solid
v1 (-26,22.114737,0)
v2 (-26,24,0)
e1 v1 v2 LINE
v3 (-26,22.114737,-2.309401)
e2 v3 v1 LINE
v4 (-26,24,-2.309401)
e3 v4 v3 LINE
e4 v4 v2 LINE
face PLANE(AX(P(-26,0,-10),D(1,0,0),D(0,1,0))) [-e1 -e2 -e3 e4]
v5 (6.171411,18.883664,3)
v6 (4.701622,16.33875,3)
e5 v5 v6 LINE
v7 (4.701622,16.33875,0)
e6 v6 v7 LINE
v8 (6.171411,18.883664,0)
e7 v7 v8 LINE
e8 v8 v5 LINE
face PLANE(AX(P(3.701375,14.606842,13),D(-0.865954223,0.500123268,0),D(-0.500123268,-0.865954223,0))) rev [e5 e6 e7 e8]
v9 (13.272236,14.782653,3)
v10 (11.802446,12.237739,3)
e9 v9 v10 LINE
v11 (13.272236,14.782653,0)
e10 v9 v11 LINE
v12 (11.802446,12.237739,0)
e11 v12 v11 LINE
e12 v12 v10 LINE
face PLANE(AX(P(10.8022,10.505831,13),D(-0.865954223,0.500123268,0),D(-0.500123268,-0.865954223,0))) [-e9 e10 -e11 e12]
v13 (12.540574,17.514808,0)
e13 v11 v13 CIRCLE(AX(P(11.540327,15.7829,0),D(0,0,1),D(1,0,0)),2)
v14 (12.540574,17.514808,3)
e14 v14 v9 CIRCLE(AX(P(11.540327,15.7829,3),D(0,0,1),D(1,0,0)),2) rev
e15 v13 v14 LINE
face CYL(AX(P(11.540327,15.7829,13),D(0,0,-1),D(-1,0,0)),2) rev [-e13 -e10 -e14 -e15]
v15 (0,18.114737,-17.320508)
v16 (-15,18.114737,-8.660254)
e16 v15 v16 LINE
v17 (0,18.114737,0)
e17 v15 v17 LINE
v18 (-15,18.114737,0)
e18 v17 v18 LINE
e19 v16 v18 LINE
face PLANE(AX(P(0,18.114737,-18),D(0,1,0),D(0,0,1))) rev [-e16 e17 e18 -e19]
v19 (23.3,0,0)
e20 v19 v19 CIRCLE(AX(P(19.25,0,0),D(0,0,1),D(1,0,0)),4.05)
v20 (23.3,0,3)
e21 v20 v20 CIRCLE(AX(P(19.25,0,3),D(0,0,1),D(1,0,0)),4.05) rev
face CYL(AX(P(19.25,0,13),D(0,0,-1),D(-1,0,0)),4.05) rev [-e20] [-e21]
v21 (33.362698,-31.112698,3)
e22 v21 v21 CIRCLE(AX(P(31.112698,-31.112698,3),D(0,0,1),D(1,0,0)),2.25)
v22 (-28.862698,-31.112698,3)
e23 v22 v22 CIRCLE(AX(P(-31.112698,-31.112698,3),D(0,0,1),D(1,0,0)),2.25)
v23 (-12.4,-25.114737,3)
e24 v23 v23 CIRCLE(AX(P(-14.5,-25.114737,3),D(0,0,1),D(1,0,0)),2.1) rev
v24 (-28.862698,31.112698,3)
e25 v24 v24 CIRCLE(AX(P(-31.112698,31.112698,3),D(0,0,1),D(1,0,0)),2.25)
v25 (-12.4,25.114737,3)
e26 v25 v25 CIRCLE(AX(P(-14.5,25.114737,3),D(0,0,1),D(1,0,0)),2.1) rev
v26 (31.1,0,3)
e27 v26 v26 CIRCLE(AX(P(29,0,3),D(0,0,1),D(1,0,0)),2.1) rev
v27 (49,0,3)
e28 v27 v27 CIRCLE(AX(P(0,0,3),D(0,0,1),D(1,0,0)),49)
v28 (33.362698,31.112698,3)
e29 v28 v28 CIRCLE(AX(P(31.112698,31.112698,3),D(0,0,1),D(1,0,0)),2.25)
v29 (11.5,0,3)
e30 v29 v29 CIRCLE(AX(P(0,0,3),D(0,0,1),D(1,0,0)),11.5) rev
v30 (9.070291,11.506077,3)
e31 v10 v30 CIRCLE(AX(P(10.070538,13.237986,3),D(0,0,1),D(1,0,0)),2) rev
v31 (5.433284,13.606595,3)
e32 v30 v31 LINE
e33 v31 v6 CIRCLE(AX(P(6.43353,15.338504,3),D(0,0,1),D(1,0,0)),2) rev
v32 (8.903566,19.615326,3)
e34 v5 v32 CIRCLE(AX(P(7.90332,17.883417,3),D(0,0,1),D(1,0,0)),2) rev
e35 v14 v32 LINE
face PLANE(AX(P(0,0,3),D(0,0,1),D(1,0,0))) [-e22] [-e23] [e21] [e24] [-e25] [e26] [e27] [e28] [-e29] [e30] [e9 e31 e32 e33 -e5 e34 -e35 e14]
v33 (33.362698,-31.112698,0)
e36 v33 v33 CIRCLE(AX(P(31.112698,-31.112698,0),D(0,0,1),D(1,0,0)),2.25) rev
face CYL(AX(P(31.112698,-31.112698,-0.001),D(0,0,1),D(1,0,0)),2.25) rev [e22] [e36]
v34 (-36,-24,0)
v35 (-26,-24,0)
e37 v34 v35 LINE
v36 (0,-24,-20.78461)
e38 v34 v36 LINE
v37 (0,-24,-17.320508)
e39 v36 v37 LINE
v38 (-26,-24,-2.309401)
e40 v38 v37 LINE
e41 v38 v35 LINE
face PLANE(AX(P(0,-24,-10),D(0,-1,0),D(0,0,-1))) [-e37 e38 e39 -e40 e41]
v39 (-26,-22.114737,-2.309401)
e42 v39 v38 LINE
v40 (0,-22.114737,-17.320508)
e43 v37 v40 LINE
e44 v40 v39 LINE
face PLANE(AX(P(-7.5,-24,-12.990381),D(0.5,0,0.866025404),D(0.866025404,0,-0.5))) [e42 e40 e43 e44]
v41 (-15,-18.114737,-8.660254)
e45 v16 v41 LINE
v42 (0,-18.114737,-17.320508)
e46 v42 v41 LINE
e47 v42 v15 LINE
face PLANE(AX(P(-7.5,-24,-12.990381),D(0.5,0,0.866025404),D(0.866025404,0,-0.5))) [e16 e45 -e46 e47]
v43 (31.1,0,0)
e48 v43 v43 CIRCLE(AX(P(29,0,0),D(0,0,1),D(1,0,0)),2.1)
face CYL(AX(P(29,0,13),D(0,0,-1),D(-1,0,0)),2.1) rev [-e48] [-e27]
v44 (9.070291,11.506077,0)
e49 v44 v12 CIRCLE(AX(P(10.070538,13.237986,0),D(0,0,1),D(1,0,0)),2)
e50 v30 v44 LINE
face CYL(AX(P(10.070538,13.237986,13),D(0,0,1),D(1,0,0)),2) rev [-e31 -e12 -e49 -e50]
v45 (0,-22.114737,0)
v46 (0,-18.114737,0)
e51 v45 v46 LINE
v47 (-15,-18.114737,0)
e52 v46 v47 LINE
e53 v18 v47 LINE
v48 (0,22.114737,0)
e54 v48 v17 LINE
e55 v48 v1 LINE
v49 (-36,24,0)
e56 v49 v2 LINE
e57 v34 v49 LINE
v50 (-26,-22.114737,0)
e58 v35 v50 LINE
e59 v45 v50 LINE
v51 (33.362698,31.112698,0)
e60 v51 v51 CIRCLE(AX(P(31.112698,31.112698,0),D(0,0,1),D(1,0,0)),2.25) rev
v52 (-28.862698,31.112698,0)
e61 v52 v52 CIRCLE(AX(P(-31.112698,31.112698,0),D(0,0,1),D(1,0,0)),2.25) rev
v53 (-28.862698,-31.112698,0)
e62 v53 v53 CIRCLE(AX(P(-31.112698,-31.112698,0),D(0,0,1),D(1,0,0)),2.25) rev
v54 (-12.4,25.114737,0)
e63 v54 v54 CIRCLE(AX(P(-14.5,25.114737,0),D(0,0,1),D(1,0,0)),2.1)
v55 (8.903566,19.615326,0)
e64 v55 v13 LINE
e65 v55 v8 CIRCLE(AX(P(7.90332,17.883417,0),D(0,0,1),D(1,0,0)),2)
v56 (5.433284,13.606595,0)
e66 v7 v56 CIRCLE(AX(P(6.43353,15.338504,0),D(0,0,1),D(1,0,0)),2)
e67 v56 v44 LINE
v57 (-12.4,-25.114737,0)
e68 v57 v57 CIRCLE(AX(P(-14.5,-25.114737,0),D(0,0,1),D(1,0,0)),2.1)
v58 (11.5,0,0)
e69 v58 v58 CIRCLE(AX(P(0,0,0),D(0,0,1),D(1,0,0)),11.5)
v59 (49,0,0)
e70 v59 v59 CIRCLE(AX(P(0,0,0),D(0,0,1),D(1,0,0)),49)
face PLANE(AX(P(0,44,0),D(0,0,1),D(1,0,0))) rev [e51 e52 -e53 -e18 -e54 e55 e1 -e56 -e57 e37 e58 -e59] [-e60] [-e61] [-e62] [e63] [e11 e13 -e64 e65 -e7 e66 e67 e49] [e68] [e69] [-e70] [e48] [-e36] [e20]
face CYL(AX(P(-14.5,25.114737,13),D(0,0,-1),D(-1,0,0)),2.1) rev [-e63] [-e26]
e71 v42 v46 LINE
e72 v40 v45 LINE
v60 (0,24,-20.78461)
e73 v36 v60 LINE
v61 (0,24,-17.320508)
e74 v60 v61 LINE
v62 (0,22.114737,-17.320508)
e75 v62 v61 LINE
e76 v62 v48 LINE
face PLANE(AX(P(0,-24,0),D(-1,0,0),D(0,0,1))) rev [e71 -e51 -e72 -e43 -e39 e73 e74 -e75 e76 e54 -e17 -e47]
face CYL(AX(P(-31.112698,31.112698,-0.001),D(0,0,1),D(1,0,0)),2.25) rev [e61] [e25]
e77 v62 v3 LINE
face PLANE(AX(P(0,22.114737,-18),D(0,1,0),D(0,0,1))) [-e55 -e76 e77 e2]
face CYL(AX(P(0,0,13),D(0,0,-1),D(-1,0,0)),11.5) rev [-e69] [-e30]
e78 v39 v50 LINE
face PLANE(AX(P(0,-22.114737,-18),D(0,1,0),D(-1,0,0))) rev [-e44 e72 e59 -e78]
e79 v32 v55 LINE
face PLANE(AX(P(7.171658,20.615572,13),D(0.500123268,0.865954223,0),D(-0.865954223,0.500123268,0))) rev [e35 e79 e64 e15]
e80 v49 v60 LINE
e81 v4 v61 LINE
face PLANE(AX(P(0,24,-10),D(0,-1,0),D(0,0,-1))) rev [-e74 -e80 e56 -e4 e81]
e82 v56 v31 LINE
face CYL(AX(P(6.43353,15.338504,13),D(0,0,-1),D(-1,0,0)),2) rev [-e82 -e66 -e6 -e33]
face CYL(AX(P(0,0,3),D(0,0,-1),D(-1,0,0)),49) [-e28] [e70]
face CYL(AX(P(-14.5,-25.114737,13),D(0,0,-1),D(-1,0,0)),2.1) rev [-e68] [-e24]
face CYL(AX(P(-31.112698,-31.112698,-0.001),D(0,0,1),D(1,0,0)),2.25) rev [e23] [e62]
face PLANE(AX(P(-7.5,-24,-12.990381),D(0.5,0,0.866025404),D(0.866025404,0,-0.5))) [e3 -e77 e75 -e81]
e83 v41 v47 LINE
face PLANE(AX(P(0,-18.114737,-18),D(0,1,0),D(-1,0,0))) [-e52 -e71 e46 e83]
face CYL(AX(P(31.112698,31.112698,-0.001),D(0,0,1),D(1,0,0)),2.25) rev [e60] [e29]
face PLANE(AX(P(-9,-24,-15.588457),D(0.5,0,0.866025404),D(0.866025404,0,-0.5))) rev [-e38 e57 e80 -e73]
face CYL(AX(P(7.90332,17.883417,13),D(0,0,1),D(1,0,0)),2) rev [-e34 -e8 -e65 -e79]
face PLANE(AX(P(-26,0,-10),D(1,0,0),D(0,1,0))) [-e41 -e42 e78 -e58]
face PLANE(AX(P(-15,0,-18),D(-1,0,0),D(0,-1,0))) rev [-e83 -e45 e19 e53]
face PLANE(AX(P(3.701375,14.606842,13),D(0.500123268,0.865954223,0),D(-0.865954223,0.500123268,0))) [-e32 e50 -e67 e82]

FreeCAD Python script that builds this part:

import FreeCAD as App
import Part
import Sketcher
Q = App.Units.Quantity


def edges_at(feature, points):
    """Names of the edges that pass closest to the given points."""
    edges = feature.Shape.Edges
    near = lambda p: min(range(len(edges)), key=lambda i: edges[i].distToShape(Part.Vertex(*p))[0])
    return sorted({f"Edge{near(p) + 1}" for p in points})

doc = App.newDocument("Part")
body = doc.addObject("PartDesign::Body", "Body")

# Sketch on XY plane
sketch1 = doc.addObject("Sketcher::SketchObject", "Sketch")
body.addObject(sketch1)
sketch1.AttachmentSupport = (doc.XY_Plane, [""])
sketch1.MapMode = "FlatFace"
sketch1.addGeometry(Part.Circle(App.Vector(0, 44, 0), App.Vector(0, 0, 1), 1.6), False)
sketch1.addConstraint([
    Sketcher.Constraint("PointOnObject", 0, 3, -2),
    Sketcher.Constraint("Diameter", 0, 3.2),
    Sketcher.Constraint("DistanceY", -1, 1, 0, 3, 44.0),
])
pad1 = doc.addObject("PartDesign::Pad", "Pad")
body.addObject(pad1)
pad1.Profile = sketch1
pad1.Length = 13
body2 = doc.addObject("PartDesign::Body", "Body001")

# Sketch on XY plane
sketch2 = doc.addObject("Sketcher::SketchObject", "Sketch001")
body2.addObject(sketch2)
sketch2.AttachmentSupport = (doc.getObject("XY_Plane001"), [""])
sketch2.MapMode = "FlatFace"
sketch2.addGeometry(Part.Circle(App.Vector(44, 0, 0), App.Vector(0, 0, 1), 1.6), False)
sketch2.addConstraint([
    Sketcher.Constraint("PointOnObject", 0, 3, -1),
    Sketcher.Constraint("Diameter", 0, 3.2),
    Sketcher.Constraint("DistanceX", -1, 1, 0, 3, 44.0),
])
pad2 = doc.addObject("PartDesign::Pad", "Pad001")
body2.addObject(pad2)
pad2.Profile = sketch2
pad2.Length = 13
body3 = doc.addObject("PartDesign::Body", "Body002")

# Sketch on XY plane
sketch3 = doc.addObject("Sketcher::SketchObject", "Sketch002")
body3.addObject(sketch3)
sketch3.AttachmentSupport = (doc.getObject("XY_Plane002"), [""])
sketch3.MapMode = "FlatFace"
sketch3.addGeometry(Part.Circle(App.Vector(0, -44, 0), App.Vector(0, 0, 1), 1.6), False)
sketch3.addConstraint([
    Sketcher.Constraint("PointOnObject", 0, 3, -2),
    Sketcher.Constraint("Diameter", 0, 3.2),
    Sketcher.Constraint("DistanceY", 0, 3, -1, 1, 44.0),
])
pad3 = doc.addObject("PartDesign::Pad", "Pad002")
body3.addObject(pad3)
pad3.Profile = sketch3
pad3.Length = 13
body4 = doc.addObject("PartDesign::Body", "Body003")

# Sketch on XY plane
sketch4 = doc.addObject("Sketcher::SketchObject", "Sketch003")
body4.addObject(sketch4)
sketch4.AttachmentSupport = (doc.getObject("XY_Plane003"), [""])
sketch4.MapMode = "FlatFace"
sketch4.addGeometry(Part.Circle(App.Vector(-44, 0, 0), App.Vector(0, 0, 1), 1.6), False)
sketch4.addConstraint([
    Sketcher.Constraint("PointOnObject", 0, 3, -1),
    Sketcher.Constraint("Diameter", 0, 3.2),
    Sketcher.Constraint("DistanceX", 0, 3, -1, 1, 44.0),
])
pad4 = doc.addObject("PartDesign::Pad", "Pad003")
body4.addObject(pad4)
pad4.Profile = sketch4
pad4.Length = 13
body5 = doc.addObject("PartDesign::Body", "Body004")

# Sketch on XY plane
sketch5 = doc.addObject("Sketcher::SketchObject", "Sketch004")
body5.addObject(sketch5)
sketch5.AttachmentSupport = (doc.getObject("XY_Plane004"), [""])
sketch5.MapMode = "FlatFace"
sketch5.addGeometry(Part.Circle(App.Vector(29, 0, 0), App.Vector(0, 0, 1), 2.1), False)
sketch5.addConstraint([
    Sketcher.Constraint("PointOnObject", 0, 3, -1),
    Sketcher.Constraint("Diameter", 0, 4.2),
    Sketcher.Constraint("DistanceX", -1, 1, 0, 3, 29.0),
])
pad5 = doc.addObject("PartDesign::Pad", "Pad004")
body5.addObject(pad5)
pad5.Profile = sketch5
pad5.Length = 13
body6 = doc.addObject("PartDesign::Body", "Body005")

# Sketch on XY plane
sketch6 = doc.addObject("Sketcher::SketchObject", "Sketch005")
body6.addObject(sketch6)
sketch6.AttachmentSupport = (doc.getObject("XY_Plane005"), [""])
sketch6.MapMode = "FlatFace"
sketch6.addGeometry(Part.Circle(App.Vector(-14.5, 25.1, 0), App.Vector(0, 0, 1), 2.1), False)
sketch6.addConstraint([
    Sketcher.Constraint("Diameter", 0, 4.2),
    Sketcher.Constraint("DistanceX", 0, 3, -1, 1, 14.5),
    Sketcher.Constraint("DistanceY", -1, 1, 0, 3, 25.114737),
])
pad6 = doc.addObject("PartDesign::Pad", "Pad005")
body6.addObject(pad6)
pad6.Profile = sketch6
pad6.Length = 13
body7 = doc.addObject("PartDesign::Body", "Body006")

# Sketch on XY plane
sketch7 = doc.addObject("Sketcher::SketchObject", "Sketch006")
body7.addObject(sketch7)
sketch7.AttachmentSupport = (doc.getObject("XY_Plane006"), [""])
sketch7.MapMode = "FlatFace"
sketch7.addGeometry(Part.Circle(App.Vector(-14.5, -25.1, 0), App.Vector(0, 0, 1), 2.1), False)
sketch7.addConstraint([
    Sketcher.Constraint("Diameter", 0, 4.2),
    Sketcher.Constraint("DistanceX", 0, 3, -1, 1, 14.5),
    Sketcher.Constraint("DistanceY", 0, 3, -1, 1, 25.114737),
])
pad7 = doc.addObject("PartDesign::Pad", "Pad006")
body7.addObject(pad7)
pad7.Profile = sketch7
pad7.Length = 13
body.AllowCompound = True
doc.recompute()

boolean = doc.addObject("PartDesign::Boolean", "Boolean")
body.addObject(boolean)
boolean.Type = "Fuse"
boolean.addObjects([body2])
doc.recompute()

boolean2 = doc.addObject("PartDesign::Boolean", "Boolean001")
body.addObject(boolean2)
boolean2.Type = "Fuse"
boolean2.addObjects([body3])
doc.recompute()

boolean3 = doc.addObject("PartDesign::Boolean", "Boolean002")
body.addObject(boolean3)
boolean3.Type = "Fuse"
boolean3.addObjects([body4])
doc.recompute()

boolean4 = doc.addObject("PartDesign::Boolean", "Boolean003")
body.addObject(boolean4)
boolean4.Type = "Fuse"
boolean4.addObjects([body5])
doc.recompute()

boolean5 = doc.addObject("PartDesign::Boolean", "Boolean004")
body.addObject(boolean5)
boolean5.Type = "Fuse"
boolean5.addObjects([body6])
doc.recompute()

boolean6 = doc.addObject("PartDesign::Boolean", "Boolean005")
body.addObject(boolean6)
boolean6.Type = "Fuse"
boolean6.addObjects([body7])

# Sketch on XY plane
sketch8 = doc.addObject("Sketcher::SketchObject", "Sketch007")
body.addObject(sketch8)
sketch8.AttachmentSupport = (doc.XY_Plane, [""])
sketch8.MapMode = "FlatFace"
sketch8.addGeometry(Part.Circle(App.Vector(0, 0, 0), App.Vector(0, 0, 1), 49), False)
sketch8.addConstraint([
    Sketcher.Constraint("Coincident", 0, 3, -1, 1),
    Sketcher.Constraint("Diameter", 0, 98.0),
])
pad8 = doc.addObject("PartDesign::Pad", "Pad007")
body.addObject(pad8)
pad8.Profile = sketch8
pad8.Length = 3

# Sketch on XY plane
sketch9 = doc.addObject("Sketcher::SketchObject", "Sketch008")
body.addObject(sketch9)
sketch9.AttachmentSupport = (doc.XY_Plane, [""])
sketch9.MapMode = "FlatFace"
sketch9.addGeometry([
    Part.Circle(App.Vector(0, 44, 0), App.Vector(0, 0, 1), 2.1),  # 0
    Part.Circle(App.Vector(44, 0, 0), App.Vector(0, 0, 1), 2.1),  # 1
    Part.Circle(App.Vector(0, -44, 0), App.Vector(0, 0, 1), 2.1),  # 2
    Part.Circle(App.Vector(-44, 0, 0), App.Vector(0, 0, 1), 2.1),  # 3
    Part.Circle(App.Vector(-14.5, 25.1, 0), App.Vector(0, 0, 1), 2.1),  # 4
    Part.Circle(App.Vector(-14.5, -25.1, 0), App.Vector(0, 0, 1), 2.1),  # 5
    Part.Circle(App.Vector(29, 0, 0), App.Vector(0, 0, 1), 2.1),  # 6
], False)
sketch9.addConstraint([
    Sketcher.Constraint("Equal", 0, 1),
    Sketcher.Constraint("Equal", 1, 2),
    Sketcher.Constraint("Equal", 2, 3),
    Sketcher.Constraint("Equal", 3, 4),
    Sketcher.Constraint("Equal", 4, 5),
    Sketcher.Constraint("Equal", 5, 6),
    Sketcher.Constraint("Symmetric", 0, 3, 2, 3, -1, 1),
    Sketcher.Constraint("Symmetric", 1, 3, 3, 3, -1, 1),
    Sketcher.Constraint("Symmetric", 4, 3, 5, 3, -1),
    Sketcher.Constraint("PointOnObject", 0, 3, -2),
    Sketcher.Constraint("PointOnObject", 1, 3, -1),
    Sketcher.Constraint("PointOnObject", 6, 3, -1),
    Sketcher.Constraint("Diameter", 0, 4.2),
    Sketcher.Constraint("DistanceY", -1, 1, 0, 3, 44.0),
    Sketcher.Constraint("DistanceX", -1, 1, 1, 3, 44.0),
    Sketcher.Constraint("DistanceX", -1, 1, 6, 3, 29.0),
    Sketcher.Constraint("DistanceX", 4, 3, -1, 1, 14.5),
    Sketcher.Constraint("DistanceY", -1, 1, 4, 3, 25.114737),
])
pocket1 = doc.addObject("PartDesign::Pocket", "Pocket")
body.addObject(pocket1)
pocket1.Profile = sketch9
pocket1.Length = 13
pocket1.Reversed = True

# Sketch on XY plane
sketch10 = doc.addObject("Sketcher::SketchObject", "Sketch009")
body.addObject(sketch10)
sketch10.AttachmentSupport = (doc.XY_Plane, [""])
sketch10.MapMode = "FlatFace"
sketch10.addGeometry(Part.Circle(App.Vector(0, 0, 0), App.Vector(0, 0, 1), 9), False)
sketch10.addConstraint([
    Sketcher.Constraint("Coincident", 0, 3, -1, 1),
    Sketcher.Constraint("Diameter", 0, 17.2),
])
pocket2 = doc.addObject("PartDesign::Pocket", "Pocket001")
body.addObject(pocket2)
pocket2.Profile = sketch10
pocket2.Length = 13
pocket2.Reversed = True

# Sketch on XY plane
sketch11 = doc.addObject("Sketcher::SketchObject", "Sketch010")
body.addObject(sketch11)
sketch11.AttachmentSupport = (doc.XY_Plane, [""])
sketch11.MapMode = "FlatFace"
sketch11.addGeometry(Part.Circle(App.Vector(19.2, 0, 0), App.Vector(0, 0, 1), 4), False)
sketch11.addConstraint([
    Sketcher.Constraint("PointOnObject", 0, 3, -1),
    Sketcher.Constraint("Diameter", 0, 8.1),
    Sketcher.Constraint("DistanceX", -1, 1, 0, 3, 19.25),
])
pocket3 = doc.addObject("PartDesign::Pocket", "Pocket002")
body.addObject(pocket3)
pocket3.Profile = sketch11
pocket3.Length = 13
pocket3.Reversed = True

# Sketch on XY plane
sketch12 = doc.addObject("Sketcher::SketchObject", "Sketch011")
body.addObject(sketch12)
sketch12.AttachmentSupport = (doc.XY_Plane, [""])
sketch12.MapMode = "FlatFace"
sketch12.addGeometry([
    Part.LineSegment(App.Vector(11, 11, 0), App.Vector(14, 17, 0)),
    Part.LineSegment(App.Vector(14, 17, 0), App.Vector(7, 21, 0)),
    Part.LineSegment(App.Vector(7, 21, 0), App.Vector(4, 15, 0)),
    Part.LineSegment(App.Vector(4, 15, 0), App.Vector(11, 11, 0)),
], False)
sketch12.addConstraint([
    Sketcher.Constraint("Coincident", 0, 2, 1, 1),
    Sketcher.Constraint("Coincident", 1, 2, 2, 1),
    Sketcher.Constraint("Coincident", 2, 2, 3, 1),
    Sketcher.Constraint("Coincident", 3, 2, 0, 1),
    Sketcher.Constraint("Perpendicular", 0, 1),
    Sketcher.Constraint("Perpendicular", 1, 2),
    Sketcher.Constraint("Perpendicular", 2, 3),
    Sketcher.Constraint("Distance", 1, 8.2),
    Sketcher.Constraint("DistanceX", -1, 1, 3, 2, 10.8022),
    Sketcher.Constraint("DistanceY", -1, 1, 0, 2, 16.514561),
    Sketcher.Constraint("DistanceY", -1, 1, 2, 2, 14.606842),
    Sketcher.Constraint("DistanceY", -1, 1, 3, 2, 10.505831),
])
pocket4 = doc.addObject("PartDesign::Pocket", "Pocket003")
body.addObject(pocket4)
pocket4.Profile = sketch12
pocket4.Length = 13
pocket4.Reversed = True

# Sketch on XY plane
sketch13 = doc.addObject("Sketcher::SketchObject", "Sketch012")
body.addObject(sketch13)
sketch13.AttachmentSupport = (doc.XY_Plane, [""])
sketch13.MapMode = "FlatFace"
sketch13.addGeometry(Part.Circle(App.Vector(0, 0, 0), App.Vector(0, 0, 1), 12), False)
sketch13.addConstraint([
    Sketcher.Constraint("Coincident", 0, 3, -1, 1),
    Sketcher.Constraint("Diameter", 0, 23.0),
])
pocket5 = doc.addObject("PartDesign::Pocket", "Pocket004")
body.addObject(pocket5)
pocket5.Profile = sketch13
pocket5.Length = 13
pocket5.Reversed = True
doc.recompute()

fillet = doc.addObject("PartDesign::Fillet", "Fillet")
body.addObject(fillet)
fillet.Base = (pocket5, edges_at(pocket5, [
    (7.172, 20.616, 1.5),
    (3.701, 14.607, 1.5),
    (10.802, 10.506, 1.5),
    (14.272, 16.515, 1.5),
]))
fillet.Radius = 2

# Sketch on XY plane
sketch14 = doc.addObject("Sketcher::SketchObject", "Sketch013")
body.addObject(sketch14)
sketch14.AttachmentSupport = (doc.XY_Plane, [""])
sketch14.MapMode = "FlatFace"
sketch14.AttachmentOffset = App.Placement(App.Vector(0, 0, 3), App.Rotation())
sketch14.addGeometry(Part.Circle(App.Vector(-31.1, 31.1, 0), App.Vector(0, 0, 1), 2.2), False)
sketch14.addConstraint([
    Sketcher.Constraint("Diameter", 0, 4.5),
    Sketcher.Constraint("DistanceX", 0, 3, -1, 1, 31.112698),
    Sketcher.Constraint("DistanceY", -1, 1, 0, 3, 31.112698),
])
pocket6 = doc.addObject("PartDesign::Pocket", "Pocket005")
body.addObject(pocket6)
pocket6.Profile = sketch14
pocket6.Type = "UpToFirst"

# Sketch on XY plane
sketch15 = doc.addObject("Sketcher::SketchObject", "Sketch014")
body.addObject(sketch15)
sketch15.AttachmentSupport = (doc.XY_Plane, [""])
sketch15.MapMode = "FlatFace"
sketch15.AttachmentOffset = App.Placement(App.Vector(0, 0, 3), App.Rotation())
sketch15.addGeometry(Part.Circle(App.Vector(31.1, 31.1, 0), App.Vector(0, 0, 1), 2.2), False)
sketch15.addConstraint([
    Sketcher.Constraint("Diameter", 0, 4.5),
    Sketcher.Constraint("DistanceX", -1, 1, 0, 3, 31.112698),
    Sketcher.Constraint("DistanceY", -1, 1, 0, 3, 31.112698),
])
pocket7 = doc.addObject("PartDesign::Pocket", "Pocket006")
body.addObject(pocket7)
pocket7.Profile = sketch15
pocket7.Type = "UpToFirst"

# Sketch on XY plane
sketch16 = doc.addObject("Sketcher::SketchObject", "Sketch015")
body.addObject(sketch16)
sketch16.AttachmentSupport = (doc.XY_Plane, [""])
sketch16.MapMode = "FlatFace"
sketch16.AttachmentOffset = App.Placement(App.Vector(0, 0, 3), App.Rotation())
sketch16.addGeometry(Part.Circle(App.Vector(31.1, -31.1, 0), App.Vector(0, 0, 1), 2.2), False)
sketch16.addConstraint([
    Sketcher.Constraint("Diameter", 0, 4.5),
    Sketcher.Constraint("DistanceX", -1, 1, 0, 3, 31.112698),
    Sketcher.Constraint("DistanceY", 0, 3, -1, 1, 31.112698),
])
pocket8 = doc.addObject("PartDesign::Pocket", "Pocket007")
body.addObject(pocket8)
pocket8.Profile = sketch16
pocket8.Type = "UpToFirst"

# Sketch on XY plane
sketch17 = doc.addObject("Sketcher::SketchObject", "Sketch016")
body.addObject(sketch17)
sketch17.AttachmentSupport = (doc.XY_Plane, [""])
sketch17.MapMode = "FlatFace"
sketch17.AttachmentOffset = App.Placement(App.Vector(0, 0, 3), App.Rotation())
sketch17.addGeometry(Part.Circle(App.Vector(-31.1, -31.1, 0), App.Vector(0, 0, 1), 2.2), False)
sketch17.addConstraint([
    Sketcher.Constraint("Diameter", 0, 4.5),
    Sketcher.Constraint("DistanceX", 0, 3, -1, 1, 31.112698),
    Sketcher.Constraint("DistanceY", 0, 3, -1, 1, 31.112698),
])
pocket9 = doc.addObject("PartDesign::Pocket", "Pocket008")
body.addObject(pocket9)
pocket9.Profile = sketch17
pocket9.Type = "UpToFirst"

# Sketch on XY plane
sketch18 = doc.addObject("Sketcher::SketchObject", "Sketch017")
body.addObject(sketch18)
sketch18.AttachmentSupport = (doc.XY_Plane, [""])
sketch18.MapMode = "FlatFace"
sketch18.addGeometry([
    Part.Circle(App.Vector(-44, 0, 0), App.Vector(0, 0, 1), 2.1),
    Part.Circle(App.Vector(0, -44, 0), App.Vector(0, 0, 1), 2.1),
    Part.Circle(App.Vector(44, 0, 0), App.Vector(0, 0, 1), 2.1),
    Part.Circle(App.Vector(0, 44, 0), App.Vector(0, 0, 1), 2.1),
], False)
sketch18.addConstraint([
    Sketcher.Constraint("Equal", 0, 1),
    Sketcher.Constraint("Equal", 1, 2),
    Sketcher.Constraint("Equal", 2, 3),
    Sketcher.Constraint("Symmetric", 0, 3, 2, 3, -1, 1),
    Sketcher.Constraint("Symmetric", 1, 3, 3, 3, -1, 1),
    Sketcher.Constraint("PointOnObject", 0, 3, -1),
    Sketcher.Constraint("PointOnObject", 1, 3, -2),
    Sketcher.Constraint("Diameter", 0, 4.2),
    Sketcher.Constraint("DistanceX", 0, 3, -1, 1, 44.0),
    Sketcher.Constraint("DistanceY", 1, 3, -1, 1, 44.0),
])
pad9 = doc.addObject("PartDesign::Pad", "Pad008")
body.addObject(pad9)
pad9.Profile = sketch18
pad9.Length = 3

# Sketch on XY plane
sketch19 = doc.addObject("Sketcher::SketchObject", "Sketch018")
body.addObject(sketch19)
sketch19.AttachmentSupport = (doc.XY_Plane, [""])
sketch19.MapMode = "FlatFace"
sketch19.addGeometry([
    Part.LineSegment(App.Vector(-26, 24, 0), App.Vector(-26, -24, 0)),
    Part.LineSegment(App.Vector(-26, -24, 0), App.Vector(-36, -24, 0)),
    Part.LineSegment(App.Vector(-36, -24, 0), App.Vector(-36, 24, 0)),
    Part.LineSegment(App.Vector(-36, 24, 0), App.Vector(-26, 24, 0)),
], False)
sketch19.addConstraint([
    Sketcher.Constraint("Coincident", 0, 2, 1, 1),
    Sketcher.Constraint("Coincident", 1, 2, 2, 1),
    Sketcher.Constraint("Coincident", 2, 2, 3, 1),
    Sketcher.Constraint("Coincident", 3, 2, 0, 1),
    Sketcher.Constraint("Vertical", 0),
    Sketcher.Constraint("Horizontal", 1),
    Sketcher.Constraint("Vertical", 2),
    Sketcher.Constraint("Horizontal", 3),
    Sketcher.Constraint("DistanceX", 1, 2, 1, 1, 10.0),
    Sketcher.Constraint("DistanceY", 0, 2, 0, 1, 48.0),
    Sketcher.Constraint("DistanceX", 0, 2, -1, 1, 26.0),
    Sketcher.Constraint("DistanceY", 0, 2, -1, 1, 24.0),
])
pad10 = doc.addObject("PartDesign::Pad", "Pad009")
body.addObject(pad10)
pad10.Profile = sketch19
pad10.Length = 10
pad10.Reversed = True

# Sketch on XZ plane
sketch20 = doc.addObject("Sketcher::SketchObject", "Sketch019")
body.addObject(sketch20)
sketch20.AttachmentSupport = (doc.XZ_Plane, [""])
sketch20.MapMode = "FlatFace"
sketch20.AttachmentOffset = App.Placement(App.Vector(0, 0, -24), App.Rotation())
sketch20.addGeometry([
    Part.LineSegment(App.Vector(0, -20.8, 0), App.Vector(-26, -5.8, 0)),  # 0
    Part.LineSegment(App.Vector(-26, -5.8, 0), App.Vector(-36, 0, 0)),  # 1
    Part.LineSegment(App.Vector(-36, 0, 0), App.Vector(-30, 0, 0)),  # 2
    Part.LineSegment(App.Vector(-30, 0, 0), App.Vector(-26, -2.3, 0)),  # 3
    Part.LineSegment(App.Vector(-26, -2.3, 0), App.Vector(0, -17.3, 0)),  # 4
    Part.LineSegment(App.Vector(0, -17.3, 0), App.Vector(0, -20.8, 0)),  # 5
], False)
sketch20.addConstraint([
    Sketcher.Constraint("Coincident", 0, 2, 1, 1),
    Sketcher.Constraint("Coincident", 1, 2, 2, 1),
    Sketcher.Constraint("Coincident", 2, 2, 3, 1),
    Sketcher.Constraint("Coincident", 3, 2, 4, 1),
    Sketcher.Constraint("Coincident", 4, 2, 5, 1),
    Sketcher.Constraint("Coincident", 5, 2, 0, 1),
    Sketcher.Constraint("Horizontal", 2),
    Sketcher.Constraint("Vertical", 5),
    Sketcher.Constraint("PointOnObject", 1, 2, -1),
    Sketcher.Constraint("PointOnObject", 4, 2, -2),
    Sketcher.Constraint("Parallel", 0, 1),
    Sketcher.Constraint("Parallel", 1, 3),
    Sketcher.Constraint("Parallel", 3, 4),
    Sketcher.Constraint("Vertical", 0, 2, 3, 2),
    Sketcher.Constraint("DistanceX", 2, 1, 2, 2, 6.0),
    Sketcher.Constraint("Angle", 0, Q("150 deg")),
    Sketcher.Constraint("DistanceX", 0, 2, -1, 1, 26.0),
    Sketcher.Constraint("DistanceX", 1, 2, -1, 1, 36.0),
])
pad11 = doc.addObject("PartDesign::Pad", "Pad010")
body.addObject(pad11)
pad11.Profile = sketch20
pad11.Length = 48

# Sketch on XY plane
sketch21 = doc.addObject("Sketcher::SketchObject", "Sketch020")
body.addObject(sketch21)
sketch21.AttachmentSupport = (doc.XY_Plane, [""])
sketch21.MapMode = "FlatFace"
sketch21.addGeometry([
    Part.LineSegment(App.Vector(0, -18.1, 0), App.Vector(0, -22.1, 0)),  # 0
    Part.LineSegment(App.Vector(0, -22.1, 0), App.Vector(-26, -22.1, 0)),  # 1
    Part.LineSegment(App.Vector(-26, -22.1, 0), App.Vector(-26, 22.1, 0)),  # 2
    Part.LineSegment(App.Vector(-26, 22.1, 0), App.Vector(0, 22.1, 0)),  # 3
    Part.LineSegment(App.Vector(0, 22.1, 0), App.Vector(0, 18.1, 0)),  # 4
    Part.LineSegment(App.Vector(0, 18.1, 0), App.Vector(-15, 18.1, 0)),  # 5
    Part.LineSegment(App.Vector(-15, 18.1, 0), App.Vector(-15, -18.1, 0)),  # 6
    Part.LineSegment(App.Vector(-15, -18.1, 0), App.Vector(0, -18.1, 0)),  # 7
], False)
sketch21.addConstraint([
    Sketcher.Constraint("Coincident", 0, 2, 1, 1),
    Sketcher.Constraint("Coincident", 1, 2, 2, 1),
    Sketcher.Constraint("Coincident", 2, 2, 3, 1),
    Sketcher.Constraint("Coincident", 3, 2, 4, 1),
    Sketcher.Constraint("Coincident", 4, 2, 5, 1),
    Sketcher.Constraint("Coincident", 5, 2, 6, 1),
    Sketcher.Constraint("Coincident", 6, 2, 7, 1),
    Sketcher.Constraint("Coincident", 7, 2, 0, 1),
    Sketcher.Constraint("Vertical", 0),
    Sketcher.Constraint("Horizontal", 1),
    Sketcher.Constraint("Vertical", 2),
    Sketcher.Constraint("Horizontal", 3),
    Sketcher.Constraint("Vertical", 4),
    Sketcher.Constraint("Horizontal", 5),
    Sketcher.Constraint("Vertical", 6),
    Sketcher.Constraint("Horizontal", 7),
    Sketcher.Constraint("Symmetric", 0, 2, 3, 2, -1, 1),
    Sketcher.Constraint("Symmetric", 4, 2, 7, 2, -1),
    Sketcher.Constraint("DistanceX", 1, 2, 1, 1, 26.0),
    Sketcher.Constraint("DistanceX", 5, 2, 5, 1, 15.0),
    Sketcher.Constraint("DistanceY", 0, 2, 0, 1, 4.0),
    Sketcher.Constraint("DistanceY", 2, 1, 2, 2, 44.229473),
])
pad12 = doc.addObject("PartDesign::Pad", "Pad011")
body.addObject(pad12)
pad12.Profile = sketch21
pad12.Length = 18
pad12.Reversed = True

# Sketch on XZ plane
sketch22 = doc.addObject("Sketcher::SketchObject", "Sketch021")
body.addObject(sketch22)
sketch22.AttachmentSupport = (doc.XZ_Plane, [""])
sketch22.MapMode = "FlatFace"
sketch22.AttachmentOffset = App.Placement(App.Vector(0, 0, -24), App.Rotation())
sketch22.addGeometry([
    Part.LineSegment(App.Vector(0, -21, 0), App.Vector(-36, -21, 0)),
    Part.LineSegment(App.Vector(-36, -21, 0), App.Vector(-36, 0, 0)),
    Part.LineSegment(App.Vector(-36, 0, 0), App.Vector(0, -21, 0)),
], False)
sketch22.addConstraint([
    Sketcher.Constraint("Coincident", 0, 2, 1, 1),
    Sketcher.Constraint("Coincident", 1, 2, 2, 1),
    Sketcher.Constraint("Coincident", 2, 2, 0, 1),
    Sketcher.Constraint("Horizontal", 0),
    Sketcher.Constraint("Vertical", 1),
    Sketcher.Constraint("PointOnObject", 1, 2, -1),
    Sketcher.Constraint("PointOnObject", 2, 2, -2),
    Sketcher.Constraint("DistanceX", 0, 2, 0, 1, 36.0),
    Sketcher.Constraint("Angle", 2, Q("-30 deg")),
])
pocket10 = doc.addObject("PartDesign::Pocket", "Pocket009")
body.addObject(pocket10)
pocket10.Profile = sketch22
pocket10.Length = 48
pocket10.Reversed = True

doc.recompute()
